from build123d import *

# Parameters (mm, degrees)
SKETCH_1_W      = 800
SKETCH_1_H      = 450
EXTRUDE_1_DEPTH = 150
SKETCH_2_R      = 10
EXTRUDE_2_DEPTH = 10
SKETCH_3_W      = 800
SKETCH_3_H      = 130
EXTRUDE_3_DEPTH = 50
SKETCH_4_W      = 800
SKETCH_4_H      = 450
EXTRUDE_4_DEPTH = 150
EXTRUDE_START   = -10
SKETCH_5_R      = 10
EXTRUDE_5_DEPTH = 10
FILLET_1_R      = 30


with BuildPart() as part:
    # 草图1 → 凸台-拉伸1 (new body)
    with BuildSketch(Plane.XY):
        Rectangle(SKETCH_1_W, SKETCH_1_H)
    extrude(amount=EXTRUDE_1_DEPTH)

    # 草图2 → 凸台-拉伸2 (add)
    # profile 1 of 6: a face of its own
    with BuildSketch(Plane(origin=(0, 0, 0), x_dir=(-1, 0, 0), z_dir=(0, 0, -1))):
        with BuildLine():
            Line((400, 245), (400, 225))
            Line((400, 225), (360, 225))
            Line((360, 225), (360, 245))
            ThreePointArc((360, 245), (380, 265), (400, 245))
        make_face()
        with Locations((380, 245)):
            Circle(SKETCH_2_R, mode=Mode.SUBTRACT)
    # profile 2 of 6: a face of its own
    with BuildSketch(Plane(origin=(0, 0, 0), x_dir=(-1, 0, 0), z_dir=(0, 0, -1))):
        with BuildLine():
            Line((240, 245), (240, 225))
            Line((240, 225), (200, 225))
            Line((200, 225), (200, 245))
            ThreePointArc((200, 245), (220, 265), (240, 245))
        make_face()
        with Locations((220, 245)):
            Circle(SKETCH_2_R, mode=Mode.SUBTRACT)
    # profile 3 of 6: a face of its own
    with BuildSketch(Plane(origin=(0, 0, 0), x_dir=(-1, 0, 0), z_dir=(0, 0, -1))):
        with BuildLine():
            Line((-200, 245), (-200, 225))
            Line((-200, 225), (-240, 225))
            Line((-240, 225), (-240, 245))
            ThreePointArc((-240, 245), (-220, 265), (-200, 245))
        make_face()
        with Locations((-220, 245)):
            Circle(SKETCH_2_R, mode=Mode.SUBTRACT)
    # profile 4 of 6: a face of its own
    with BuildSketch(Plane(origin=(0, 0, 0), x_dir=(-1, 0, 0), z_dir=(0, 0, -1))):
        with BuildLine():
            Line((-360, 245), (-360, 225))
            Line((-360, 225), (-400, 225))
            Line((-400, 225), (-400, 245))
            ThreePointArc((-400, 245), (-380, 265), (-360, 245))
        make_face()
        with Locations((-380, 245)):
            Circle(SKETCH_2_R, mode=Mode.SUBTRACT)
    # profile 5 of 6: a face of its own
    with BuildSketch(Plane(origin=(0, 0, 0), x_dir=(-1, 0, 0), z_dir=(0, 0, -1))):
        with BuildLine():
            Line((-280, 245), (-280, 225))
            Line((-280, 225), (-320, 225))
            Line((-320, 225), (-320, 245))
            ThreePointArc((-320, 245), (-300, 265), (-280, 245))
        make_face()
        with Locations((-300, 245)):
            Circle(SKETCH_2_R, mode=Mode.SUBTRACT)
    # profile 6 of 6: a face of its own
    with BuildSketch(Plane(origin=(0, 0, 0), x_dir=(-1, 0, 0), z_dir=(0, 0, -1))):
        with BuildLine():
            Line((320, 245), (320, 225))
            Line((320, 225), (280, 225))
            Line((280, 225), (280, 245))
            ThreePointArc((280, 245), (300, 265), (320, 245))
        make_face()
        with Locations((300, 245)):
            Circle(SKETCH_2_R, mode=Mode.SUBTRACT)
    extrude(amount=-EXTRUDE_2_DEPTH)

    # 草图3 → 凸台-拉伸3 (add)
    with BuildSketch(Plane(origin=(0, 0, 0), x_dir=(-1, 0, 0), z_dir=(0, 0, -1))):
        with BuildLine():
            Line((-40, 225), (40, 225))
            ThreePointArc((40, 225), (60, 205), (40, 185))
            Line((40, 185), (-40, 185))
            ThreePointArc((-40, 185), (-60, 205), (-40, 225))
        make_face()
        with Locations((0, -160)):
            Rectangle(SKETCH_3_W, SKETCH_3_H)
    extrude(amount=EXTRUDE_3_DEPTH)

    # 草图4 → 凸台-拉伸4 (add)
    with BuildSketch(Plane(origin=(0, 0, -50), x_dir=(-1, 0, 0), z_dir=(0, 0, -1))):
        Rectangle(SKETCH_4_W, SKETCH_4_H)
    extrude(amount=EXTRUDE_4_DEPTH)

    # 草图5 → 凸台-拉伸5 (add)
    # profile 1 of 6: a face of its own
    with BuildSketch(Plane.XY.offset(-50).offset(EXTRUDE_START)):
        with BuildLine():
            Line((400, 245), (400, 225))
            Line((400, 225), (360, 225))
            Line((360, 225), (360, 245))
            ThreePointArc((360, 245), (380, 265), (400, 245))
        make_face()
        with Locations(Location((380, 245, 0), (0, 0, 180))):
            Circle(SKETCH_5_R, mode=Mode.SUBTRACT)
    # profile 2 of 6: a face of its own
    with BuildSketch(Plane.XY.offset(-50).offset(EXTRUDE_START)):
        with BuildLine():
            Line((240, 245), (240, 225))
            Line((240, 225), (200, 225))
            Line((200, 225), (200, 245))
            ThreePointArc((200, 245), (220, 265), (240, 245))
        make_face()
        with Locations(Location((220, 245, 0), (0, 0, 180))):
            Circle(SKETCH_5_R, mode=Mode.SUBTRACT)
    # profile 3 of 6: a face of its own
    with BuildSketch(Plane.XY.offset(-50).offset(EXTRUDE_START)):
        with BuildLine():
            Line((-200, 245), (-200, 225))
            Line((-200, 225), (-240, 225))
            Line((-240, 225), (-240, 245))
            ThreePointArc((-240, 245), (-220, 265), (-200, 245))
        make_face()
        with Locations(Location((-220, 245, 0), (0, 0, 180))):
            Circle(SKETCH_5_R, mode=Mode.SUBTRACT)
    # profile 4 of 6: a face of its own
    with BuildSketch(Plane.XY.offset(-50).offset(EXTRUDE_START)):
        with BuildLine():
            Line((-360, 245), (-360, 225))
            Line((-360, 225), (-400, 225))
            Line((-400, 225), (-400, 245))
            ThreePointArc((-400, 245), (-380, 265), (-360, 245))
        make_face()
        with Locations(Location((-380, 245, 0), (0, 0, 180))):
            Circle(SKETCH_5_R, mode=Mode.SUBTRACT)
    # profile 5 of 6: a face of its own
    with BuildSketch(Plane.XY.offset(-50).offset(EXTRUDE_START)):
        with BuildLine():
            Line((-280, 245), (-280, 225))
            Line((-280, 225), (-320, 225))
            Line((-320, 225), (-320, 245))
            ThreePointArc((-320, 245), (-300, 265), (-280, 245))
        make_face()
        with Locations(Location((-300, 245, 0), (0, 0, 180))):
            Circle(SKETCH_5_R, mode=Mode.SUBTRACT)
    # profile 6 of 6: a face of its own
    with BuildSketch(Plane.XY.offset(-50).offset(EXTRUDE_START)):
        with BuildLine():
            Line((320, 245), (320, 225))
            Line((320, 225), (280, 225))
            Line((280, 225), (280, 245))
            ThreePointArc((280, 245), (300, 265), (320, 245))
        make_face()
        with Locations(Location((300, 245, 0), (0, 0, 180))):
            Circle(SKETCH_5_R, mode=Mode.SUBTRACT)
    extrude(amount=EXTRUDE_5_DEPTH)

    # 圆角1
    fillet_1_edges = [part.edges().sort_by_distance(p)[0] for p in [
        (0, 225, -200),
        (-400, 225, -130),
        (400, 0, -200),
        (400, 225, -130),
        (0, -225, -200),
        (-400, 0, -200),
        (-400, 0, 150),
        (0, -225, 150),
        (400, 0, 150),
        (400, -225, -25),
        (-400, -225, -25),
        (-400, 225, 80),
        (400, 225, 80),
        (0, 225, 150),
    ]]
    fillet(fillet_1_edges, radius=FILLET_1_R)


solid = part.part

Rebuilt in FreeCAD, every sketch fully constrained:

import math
import FreeCAD as App
import Part
import Sketcher


def edges_at(feature, points):
    """Names of the edges that pass closest to the given points."""
    edges = feature.Shape.Edges
    near = lambda p: min(range(len(edges)), key=lambda i: edges[i].distToShape(Part.Vertex(*p))[0])
    return sorted({f"Edge{near(p) + 1}" for p in points})

doc = App.newDocument("Part")
body = doc.addObject("PartDesign::Body", "Body")

sketch1 = body.newObject("Sketcher::SketchObject", "Sketch")
sketch1.AttachmentSupport = (doc.getObject("XY_Plane"), [""])
sketch1.MapMode = "FlatFace"
sketch1.addGeometry([
    Part.LineSegment(App.Vector(-400, 225, 0), App.Vector(-400, -225, 0)),
    Part.LineSegment(App.Vector(-400, -225, 0), App.Vector(400, -225, 0)),
    Part.LineSegment(App.Vector(400, -225, 0), App.Vector(400, 225, 0)),
    Part.LineSegment(App.Vector(400, 225, 0), App.Vector(-400, 225, 0)),
], False)
sketch1.addConstraint([
    Sketcher.Constraint("Coincident", 0, 2, 1, 1),
    Sketcher.Constraint("Coincident", 1, 2, 2, 1),
    Sketcher.Constraint("Coincident", 2, 2, 3, 1),
    Sketcher.Constraint("Coincident", 3, 2, 0, 1),
    Sketcher.Constraint("Vertical", 0),
    Sketcher.Constraint("Horizontal", 1),
    Sketcher.Constraint("Vertical", 2),
    Sketcher.Constraint("Horizontal", 3),
    Sketcher.Constraint("Symmetric", 0, 2, 2, 2, -1, 1),
    Sketcher.Constraint("DistanceX", 1, 1, 1, 2, 800.0),
    Sketcher.Constraint("DistanceY", 0, 2, 0, 1, 450.0),
])
pad1 = body.newObject("PartDesign::Pad", "Pad")
pad1.Profile = sketch1
pad1.Length = 150

sketch2 = body.newObject("Sketcher::SketchObject", "Sketch001")
sketch2.AttachmentSupport = (doc.getObject("XY_Plane"), [""])
sketch2.MapMode = "FlatFace"
sketch2.addGeometry([
    Part.LineSegment(App.Vector(-400, 225, 0), App.Vector(-400, 245, 0)),
    Part.ArcOfCircle(Part.Circle(App.Vector(-380, 245, 0), App.Vector(0, 0, 1), 20), math.radians(0), math.radians(180)),
    Part.LineSegment(App.Vector(-360, 245, 0), App.Vector(-360, 225, 0)),
    Part.LineSegment(App.Vector(-360, 225, 0), App.Vector(-400, 225, 0)),
    Part.Circle(App.Vector(-380, 245, 0), App.Vector(0, 0, 1), 10),
    Part.LineSegment(App.Vector(-240, 225, 0), App.Vector(-240, 245, 0)),
    Part.ArcOfCircle(Part.Circle(App.Vector(-220, 245, 0), App.Vector(0, 0, 1), 20), math.radians(0), math.radians(180)),
    Part.LineSegment(App.Vector(-200, 245, 0), App.Vector(-200, 225, 0)),
    Part.LineSegment(App.Vector(-200, 225, 0), App.Vector(-240, 225, 0)),
    Part.Circle(App.Vector(-220, 245, 0), App.Vector(0, 0, 1), 10),
    Part.LineSegment(App.Vector(200, 225, 0), App.Vector(200, 245, 0)),
    Part.ArcOfCircle(Part.Circle(App.Vector(220, 245, 0), App.Vector(0, 0, 1), 20), math.radians(0), math.radians(180)),
    Part.LineSegment(App.Vector(240, 245, 0), App.Vector(240, 225, 0)),
    Part.LineSegment(App.Vector(240, 225, 0), App.Vector(200, 225, 0)),
    Part.Circle(App.Vector(220, 245, 0), App.Vector(0, 0, 1), 10),
    Part.LineSegment(App.Vector(360, 225, 0), App.Vector(360, 245, 0)),
    Part.ArcOfCircle(Part.Circle(App.Vector(380, 245, 0), App.Vector(0, 0, 1), 20), math.radians(0), math.radians(180)),
    Part.LineSegment(App.Vector(400, 245, 0), App.Vector(400, 225, 0)),
    Part.LineSegment(App.Vector(400, 225, 0), App.Vector(360, 225, 0)),
    Part.Circle(App.Vector(380, 245, 0), App.Vector(0, 0, 1), 10),
    Part.LineSegment(App.Vector(280, 225, 0), App.Vector(280, 245, 0)),
    Part.ArcOfCircle(Part.Circle(App.Vector(300, 245, 0), App.Vector(0, 0, 1), 20), math.radians(0), math.radians(180)),
    Part.LineSegment(App.Vector(320, 245, 0), App.Vector(320, 225, 0)),
    Part.LineSegment(App.Vector(320, 225, 0), App.Vector(280, 225, 0)),
    Part.Circle(App.Vector(300, 245, 0), App.Vector(0, 0, 1), 10),
    Part.LineSegment(App.Vector(-320, 225, 0), App.Vector(-320, 245, 0)),
    Part.ArcOfCircle(Part.Circle(App.Vector(-300, 245, 0), App.Vector(0, 0, 1), 20), math.radians(0), math.radians(180)),
    Part.LineSegment(App.Vector(-280, 245, 0), App.Vector(-280, 225, 0)),
    Part.LineSegment(App.Vector(-280, 225, 0), App.Vector(-320, 225, 0)),
    Part.Circle(App.Vector(-300, 245, 0), App.Vector(0, 0, 1), 10),
], False)
sketch2.addConstraint([
    Sketcher.Constraint("Tangent", 0, 2, 1, 2),
    Sketcher.Constraint("Tangent", 1, 1, 2, 1),
    Sketcher.Constraint("Coincident", 2, 2, 3, 1),
    Sketcher.Constraint("Coincident", 3, 2, 0, 1),
    Sketcher.Constraint("Tangent", 5, 2, 6, 2),
    Sketcher.Constraint("Tangent", 6, 1, 7, 1),
    Sketcher.Constraint("Coincident", 7, 2, 8, 1),
    Sketcher.Constraint("Coincident", 8, 2, 5, 1),
    Sketcher.Constraint("Tangent", 10, 2, 11, 2),
    Sketcher.Constraint("Tangent", 11, 1, 12, 1),
    Sketcher.Constraint("Coincident", 12, 2, 13, 1),
    Sketcher.Constraint("Coincident", 13, 2, 10, 1),
    Sketcher.Constraint("Tangent", 15, 2, 16, 2),
    Sketcher.Constraint("Tangent", 16, 1, 17, 1),
    Sketcher.Constraint("Coincident", 17, 2, 18, 1),
    Sketcher.Constraint("Coincident", 18, 2, 15, 1),
    Sketcher.Constraint("Tangent", 20, 2, 21, 2),
    Sketcher.Constraint("Tangent", 21, 1, 22, 1),
    Sketcher.Constraint("Coincident", 22, 2, 23, 1),
    Sketcher.Constraint("Coincident", 23, 2, 20, 1),
    Sketcher.Constraint("Tangent", 25, 2, 26, 2),
    Sketcher.Constraint("Tangent", 26, 1, 27, 1),
    Sketcher.Constraint("Coincident", 27, 2, 28, 1),
    Sketcher.Constraint("Coincident", 28, 2, 25, 1),
    Sketcher.Constraint("Vertical", 0),
    Sketcher.Constraint("Vertical", 2),
    Sketcher.Constraint("Horizontal", 3),
    Sketcher.Constraint("Vertical", 5),
    Sketcher.Constraint("Vertical", 7),
    Sketcher.Constraint("Horizontal", 8),
    Sketcher.Constraint("Vertical", 10),
    Sketcher.Constraint("Vertical", 12),
    Sketcher.Constraint("Horizontal", 13),
    Sketcher.Constraint("Vertical", 15),
    Sketcher.Constraint("Vertical", 17),
    Sketcher.Constraint("Horizontal", 18),
    Sketcher.Constraint("Vertical", 20),
    Sketcher.Constraint("Vertical", 22),
    Sketcher.Constraint("Horizontal", 23),
    Sketcher.Constraint("Vertical", 25),
    Sketcher.Constraint("Vertical", 27),
    Sketcher.Constraint("Horizontal", 28),
    Sketcher.Constraint("Coincident", 4, 3, 1, 3),
    Sketcher.Constraint("Coincident", 9, 3, 6, 3),
    Sketcher.Constraint("Coincident", 14, 3, 11, 3),
    Sketcher.Constraint("Coincident", 19, 3, 16, 3),
    Sketcher.Constraint("Coincident", 24, 3, 21, 3),
    Sketcher.Constraint("Coincident", 29, 3, 26, 3),
    Sketcher.Constraint("Equal", 1, 6),
    Sketcher.Constraint("Equal", 4, 9),
    Sketcher.Constraint("Equal", 6, 11),
    Sketcher.Constraint("Equal", 9, 14),
    Sketcher.Constraint("Equal", 11, 16),
    Sketcher.Constraint("Equal", 14, 19),
    Sketcher.Constraint("Equal", 16, 21),
    Sketcher.Constraint("Equal", 19, 24),
    Sketcher.Constraint("Equal", 21, 26),
    Sketcher.Constraint("Equal", 24, 29),
    Sketcher.Constraint("Symmetric", 6, 3, 11, 3, -2),
    Sketcher.Constraint("Symmetric", 1, 3, 16, 3, -2),
    Sketcher.Constraint("Symmetric", 21, 3, 26, 3, -2),
    Sketcher.Constraint("Horizontal", 4, 3, 6, 3),
    Sketcher.Constraint("Horizontal", 19, 3, 21, 3),
    Sketcher.Constraint("Horizontal", 3, 2, 7, 2),
    Sketcher.Constraint("Horizontal", 8, 2, 12, 2),
    Sketcher.Constraint("Horizontal", 13, 2, 17, 2),
    Sketcher.Constraint("Horizontal", 18, 2, 22, 2),
    Sketcher.Constraint("Horizontal", 23, 2, 27, 2),
    Sketcher.Constraint("Diameter", 4, 20.0),
    Sketcher.Constraint("Radius", 1, 20.0),
    Sketcher.Constraint("DistanceY", 0, 1, 0, 2, 20.0),
    Sketcher.Constraint("DistanceX", 1, 3, -1, 1, 380.0),
    Sketcher.Constraint("DistanceY", -1, 1, 1, 3, 245.0),
    Sketcher.Constraint("DistanceX", 6, 3, -1, 1, 220.0),
    Sketcher.Constraint("DistanceX", -1, 1, 21, 3, 300.0),
])
pad2 = body.newObject("PartDesign::Pad", "Pad001")
pad2.Profile = sketch2
pad2.Length = 10

sketch3 = body.newObject("Sketcher::SketchObject", "Sketch002")
sketch3.AttachmentSupport = (doc.getObject("XY_Plane"), [""])
sketch3.MapMode = "FlatFace"
sketch3.addGeometry([
    Part.LineSegment(App.Vector(-40, 225, 0), App.Vector(40, 225, 0)),
    Part.ArcOfCircle(Part.Circle(App.Vector(40, 205, 0), App.Vector(0, 0, 1), 20), math.radians(-90), math.radians(90)),
    Part.LineSegment(App.Vector(40, 185, 0), App.Vector(-40, 185, 0)),
    Part.ArcOfCircle(Part.Circle(App.Vector(-40, 205, 0), App.Vector(0, 0, 1), 20), math.radians(90), math.radians(270)),
    Part.LineSegment(App.Vector(400, -95, 0), App.Vector(400, -225, 0)),
    Part.LineSegment(App.Vector(400, -225, 0), App.Vector(-400, -225, 0)),
    Part.LineSegment(App.Vector(-400, -225, 0), App.Vector(-400, -95, 0)),
    Part.LineSegment(App.Vector(-400, -95, 0), App.Vector(400, -95, 0)),
], False)
sketch3.addConstraint([
    Sketcher.Constraint("Tangent", 0, 2, 1, 2),
    Sketcher.Constraint("Tangent", 1, 1, 2, 1),
    Sketcher.Constraint("Tangent", 2, 2, 3, 2),
    Sketcher.Constraint("Tangent", 3, 1, 0, 1),
    Sketcher.Constraint("Coincident", 4, 2, 5, 1),
    Sketcher.Constraint("Coincident", 5, 2, 6, 1),
    Sketcher.Constraint("Coincident", 6, 2, 7, 1),
    Sketcher.Constraint("Coincident", 7, 2, 4, 1),
    Sketcher.Constraint("Horizontal", 0),
    Sketcher.Constraint("Horizontal", 2),
    Sketcher.Constraint("Vertical", 4),
    Sketcher.Constraint("Horizontal", 5),
    Sketcher.Constraint("Vertical", 6),
    Sketcher.Constraint("Horizontal", 7),
    Sketcher.Constraint("Radius", 1, 20.0),
    Sketcher.Constraint("DistanceX", 0, 1, 0, 2, 80.0),
    Sketcher.Constraint("DistanceX", 5, 2, 5, 1, 800.0),
    Sketcher.Constraint("DistanceY", 4, 2, 4, 1, 130.0),
    Sketcher.Constraint("DistanceX", -1, 1, 1, 3, 40.0),
    Sketcher.Constraint("DistanceY", -1, 1, 1, 3, 205.0),
    Sketcher.Constraint("DistanceX", -1, 1, 4, 2, 400.0),
    Sketcher.Constraint("DistanceY", 4, 2, -1, 1, 225.0),
])
pad3 = body.newObject("PartDesign::Pad", "Pad002")
pad3.Profile = sketch3
pad3.Length = 50
pad3.Reversed = True

sketch4 = body.newObject("Sketcher::SketchObject", "Sketch003")
sketch4.AttachmentSupport = (doc.getObject("XY_Plane"), [""])
sketch4.MapMode = "FlatFace"
sketch4.AttachmentOffset = App.Placement(App.Vector(0, 0, -50), App.Rotation())
sketch4.addGeometry([
    Part.LineSegment(App.Vector(400, 225, 0), App.Vector(400, -225, 0)),
    Part.LineSegment(App.Vector(400, -225, 0), App.Vector(-400, -225, 0)),
    Part.LineSegment(App.Vector(-400, -225, 0), App.Vector(-400, 225, 0)),
    Part.LineSegment(App.Vector(-400, 225, 0), App.Vector(400, 225, 0)),
], False)
sketch4.addConstraint([
    Sketcher.Constraint("Coincident", 0, 2, 1, 1),
    Sketcher.Constraint("Coincident", 1, 2, 2, 1),
    Sketcher.Constraint("Coincident", 2, 2, 3, 1),
    Sketcher.Constraint("Coincident", 3, 2, 0, 1),
    Sketcher.Constraint("Vertical", 0),
    Sketcher.Constraint("Horizontal", 1),
    Sketcher.Constraint("Vertical", 2),
    Sketcher.Constraint("Horizontal", 3),
    Sketcher.Constraint("Symmetric", 0, 2, 2, 2, -1, 1),
    Sketcher.Constraint("DistanceX", 1, 2, 1, 1, 800.0),
    Sketcher.Constraint("DistanceY", 0, 2, 0, 1, 450.0),
])
pad4 = body.newObject("PartDesign::Pad", "Pad003")
pad4.Profile = sketch4
pad4.Length = 150
pad4.Reversed = True

sketch5 = body.newObject("Sketcher::SketchObject", "Sketch004")
sketch5.AttachmentSupport = (doc.getObject("XY_Plane"), [""])
sketch5.MapMode = "FlatFace"
sketch5.AttachmentOffset = App.Placement(App.Vector(0, 0, -60), App.Rotation())
sketch5.addGeometry([
    Part.LineSegment(App.Vector(400, 225, 0), App.Vector(400, 245, 0)),
    Part.ArcOfCircle(Part.Circle(App.Vector(380, 245, 0), App.Vector(0, 0, 1), 20), math.radians(0), math.radians(180)),
    Part.LineSegment(App.Vector(360, 245, 0), App.Vector(360, 225, 0)),
    Part.LineSegment(App.Vector(360, 225, 0), App.Vector(400, 225, 0)),
    Part.Circle(App.Vector(380, 245, 0), App.Vector(0, 0, 1), 10),
    Part.LineSegment(App.Vector(240, 225, 0), App.Vector(240, 245, 0)),
    Part.ArcOfCircle(Part.Circle(App.Vector(220, 245, 0), App.Vector(0, 0, 1), 20), math.radians(0), math.radians(180)),
    Part.LineSegment(App.Vector(200, 245, 0), App.Vector(200, 225, 0)),
    Part.LineSegment(App.Vector(200, 225, 0), App.Vector(240, 225, 0)),
    Part.Circle(App.Vector(220, 245, 0), App.Vector(0, 0, 1), 10),
    Part.LineSegment(App.Vector(-200, 225, 0), App.Vector(-200, 245, 0)),
    Part.ArcOfCircle(Part.Circle(App.Vector(-220, 245, 0), App.Vector(0, 0, 1), 20), math.radians(0), math.radians(180)),
    Part.LineSegment(App.Vector(-240, 245, 0), App.Vector(-240, 225, 0)),
    Part.LineSegment(App.Vector(-240, 225, 0), App.Vector(-200, 225, 0)),
    Part.Circle(App.Vector(-220, 245, 0), App.Vector(0, 0, 1), 10),
    Part.LineSegment(App.Vector(-360, 225, 0), App.Vector(-360, 245, 0)),
    Part.ArcOfCircle(Part.Circle(App.Vector(-380, 245, 0), App.Vector(0, 0, 1), 20), math.radians(0), math.radians(180)),
    Part.LineSegment(App.Vector(-400, 245, 0), App.Vector(-400, 225, 0)),
    Part.LineSegment(App.Vector(-400, 225, 0), App.Vector(-360, 225, 0)),
    Part.Circle(App.Vector(-380, 245, 0), App.Vector(0, 0, 1), 10),
    Part.LineSegment(App.Vector(-280, 225, 0), App.Vector(-280, 245, 0)),
    Part.ArcOfCircle(Part.Circle(App.Vector(-300, 245, 0), App.Vector(0, 0, 1), 20), math.radians(0), math.radians(180)),
    Part.LineSegment(App.Vector(-320, 245, 0), App.Vector(-320, 225, 0)),
    Part.LineSegment(App.Vector(-320, 225, 0), App.Vector(-280, 225, 0)),
    Part.Circle(App.Vector(-300, 245, 0), App.Vector(0, 0, 1), 10),
    Part.LineSegment(App.Vector(320, 225, 0), App.Vector(320, 245, 0)),
    Part.ArcOfCircle(Part.Circle(App.Vector(300, 245, 0), App.Vector(0, 0, 1), 20), math.radians(0), math.radians(180)),
    Part.LineSegment(App.Vector(280, 245, 0), App.Vector(280, 225, 0)),
    Part.LineSegment(App.Vector(280, 225, 0), App.Vector(320, 225, 0)),
    Part.Circle(App.Vector(300, 245, 0), App.Vector(0, 0, 1), 10),
], False)
sketch5.addConstraint([
    Sketcher.Constraint("Tangent", 0, 2, 1, 1),
    Sketcher.Constraint("Tangent", 1, 2, 2, 1),
    Sketcher.Constraint("Coincident", 2, 2, 3, 1),
    Sketcher.Constraint("Coincident", 3, 2, 0, 1),
    Sketcher.Constraint("Tangent", 5, 2, 6, 1),
    Sketcher.Constraint("Tangent", 6, 2, 7, 1),
    Sketcher.Constraint("Coincident", 7, 2, 8, 1),
    Sketcher.Constraint("Coincident", 8, 2, 5, 1),
    Sketcher.Constraint("Tangent", 10, 2, 11, 1),
    Sketcher.Constraint("Tangent", 11, 2, 12, 1),
    Sketcher.Constraint("Coincident", 12, 2, 13, 1),
    Sketcher.Constraint("Coincident", 13, 2, 10, 1),
    Sketcher.Constraint("Tangent", 15, 2, 16, 1),
    Sketcher.Constraint("Tangent", 16, 2, 17, 1),
    Sketcher.Constraint("Coincident", 17, 2, 18, 1),
    Sketcher.Constraint("Coincident", 18, 2, 15, 1),
    Sketcher.Constraint("Tangent", 20, 2, 21, 1),
    Sketcher.Constraint("Tangent", 21, 2, 22, 1),
    Sketcher.Constraint("Coincident", 22, 2, 23, 1),
    Sketcher.Constraint("Coincident", 23, 2, 20, 1),
    Sketcher.Constraint("Tangent", 25, 2, 26, 1),
    Sketcher.Constraint("Tangent", 26, 2, 27, 1),
    Sketcher.Constraint("Coincident", 27, 2, 28, 1),
    Sketcher.Constraint("Coincident", 28, 2, 25, 1),
    Sketcher.Constraint("Vertical", 0),
    Sketcher.Constraint("Vertical", 2),
    Sketcher.Constraint("Horizontal", 3),
    Sketcher.Constraint("Vertical", 5),
    Sketcher.Constraint("Vertical", 7),
    Sketcher.Constraint("Horizontal", 8),
    Sketcher.Constraint("Vertical", 10),
    Sketcher.Constraint("Vertical", 12),
    Sketcher.Constraint("Horizontal", 13),
    Sketcher.Constraint("Vertical", 15),
    Sketcher.Constraint("Vertical", 17),
    Sketcher.Constraint("Horizontal", 18),
    Sketcher.Constraint("Vertical", 20),
    Sketcher.Constraint("Vertical", 22),
    Sketcher.Constraint("Horizontal", 23),
    Sketcher.Constraint("Vertical", 25),
    Sketcher.Constraint("Vertical", 27),
    Sketcher.Constraint("Horizontal", 28),
    Sketcher.Constraint("Coincident", 4, 3, 1, 3),
    Sketcher.Constraint("Coincident", 9, 3, 6, 3),
    Sketcher.Constraint("Coincident", 14, 3, 11, 3),
    Sketcher.Constraint("Coincident", 19, 3, 16, 3),
    Sketcher.Constraint("Coincident", 24, 3, 21, 3),
    Sketcher.Constraint("Coincident", 29, 3, 26, 3),
    Sketcher.Constraint("Equal", 1, 6),
    Sketcher.Constraint("Equal", 4, 9),
    Sketcher.Constraint("Equal", 6, 11),
    Sketcher.Constraint("Equal", 9, 14),
    Sketcher.Constraint("Equal", 11, 16),
    Sketcher.Constraint("Equal", 14, 19),
    Sketcher.Constraint("Equal", 16, 21),
    Sketcher.Constraint("Equal", 19, 24),
    Sketcher.Constraint("Equal", 21, 26),
    Sketcher.Constraint("Equal", 24, 29),
    Sketcher.Constraint("Symmetric", 6, 3, 11, 3, -2),
    Sketcher.Constraint("Symmetric", 1, 3, 16, 3, -2),
    Sketcher.Constraint("Symmetric", 21, 3, 26, 3, -2),
    Sketcher.Constraint("Horizontal", 4, 3, 6, 3),
    Sketcher.Constraint("Horizontal", 19, 3, 21, 3),
    Sketcher.Constraint("Horizontal", 3, 2, 7, 2),
    Sketcher.Constraint("Horizontal", 8, 2, 12, 2),
    Sketcher.Constraint("Horizontal", 13, 2, 17, 2),
    Sketcher.Constraint("Horizontal", 18, 2, 22, 2),
    Sketcher.Constraint("Horizontal", 23, 2, 27, 2),
    Sketcher.Constraint("Diameter", 4, 20.0),
    Sketcher.Constraint("Radius", 1, 20.0),
    Sketcher.Constraint("DistanceY", 0, 1, 0, 2, 20.0),
    Sketcher.Constraint("DistanceX", -1, 1, 1, 3, 380.0),
    Sketcher.Constraint("DistanceY", -1, 1, 1, 3, 245.0),
    Sketcher.Constraint("DistanceX", -1, 1, 6, 3, 220.0),
    Sketcher.Constraint("DistanceX", 21, 3, -1, 1, 300.0),
])
pad5 = body.newObject("PartDesign::Pad", "Pad004")
pad5.Profile = sketch5
pad5.Length = 10
doc.recompute()

fillet = body.newObject("PartDesign::Fillet", "Fillet")
fillet.Base = (pad5, edges_at(pad5, [
    (0, 225, -200),
    (-400, 225, -130),
    (400, 0, -200),
    (400, 225, -130),
    (0, -225, -200),
    (-400, 0, -200),
    (-400, 0, 150),
    (0, -225, 150),
    (400, 0, 150),
    (400, -225, -25),
    (-400, -225, -25),
    (-400, 225, 80),
    (400, 225, 80),
    (0, 225, 150),
]))
fillet.Radius = 30

doc.recompute()
